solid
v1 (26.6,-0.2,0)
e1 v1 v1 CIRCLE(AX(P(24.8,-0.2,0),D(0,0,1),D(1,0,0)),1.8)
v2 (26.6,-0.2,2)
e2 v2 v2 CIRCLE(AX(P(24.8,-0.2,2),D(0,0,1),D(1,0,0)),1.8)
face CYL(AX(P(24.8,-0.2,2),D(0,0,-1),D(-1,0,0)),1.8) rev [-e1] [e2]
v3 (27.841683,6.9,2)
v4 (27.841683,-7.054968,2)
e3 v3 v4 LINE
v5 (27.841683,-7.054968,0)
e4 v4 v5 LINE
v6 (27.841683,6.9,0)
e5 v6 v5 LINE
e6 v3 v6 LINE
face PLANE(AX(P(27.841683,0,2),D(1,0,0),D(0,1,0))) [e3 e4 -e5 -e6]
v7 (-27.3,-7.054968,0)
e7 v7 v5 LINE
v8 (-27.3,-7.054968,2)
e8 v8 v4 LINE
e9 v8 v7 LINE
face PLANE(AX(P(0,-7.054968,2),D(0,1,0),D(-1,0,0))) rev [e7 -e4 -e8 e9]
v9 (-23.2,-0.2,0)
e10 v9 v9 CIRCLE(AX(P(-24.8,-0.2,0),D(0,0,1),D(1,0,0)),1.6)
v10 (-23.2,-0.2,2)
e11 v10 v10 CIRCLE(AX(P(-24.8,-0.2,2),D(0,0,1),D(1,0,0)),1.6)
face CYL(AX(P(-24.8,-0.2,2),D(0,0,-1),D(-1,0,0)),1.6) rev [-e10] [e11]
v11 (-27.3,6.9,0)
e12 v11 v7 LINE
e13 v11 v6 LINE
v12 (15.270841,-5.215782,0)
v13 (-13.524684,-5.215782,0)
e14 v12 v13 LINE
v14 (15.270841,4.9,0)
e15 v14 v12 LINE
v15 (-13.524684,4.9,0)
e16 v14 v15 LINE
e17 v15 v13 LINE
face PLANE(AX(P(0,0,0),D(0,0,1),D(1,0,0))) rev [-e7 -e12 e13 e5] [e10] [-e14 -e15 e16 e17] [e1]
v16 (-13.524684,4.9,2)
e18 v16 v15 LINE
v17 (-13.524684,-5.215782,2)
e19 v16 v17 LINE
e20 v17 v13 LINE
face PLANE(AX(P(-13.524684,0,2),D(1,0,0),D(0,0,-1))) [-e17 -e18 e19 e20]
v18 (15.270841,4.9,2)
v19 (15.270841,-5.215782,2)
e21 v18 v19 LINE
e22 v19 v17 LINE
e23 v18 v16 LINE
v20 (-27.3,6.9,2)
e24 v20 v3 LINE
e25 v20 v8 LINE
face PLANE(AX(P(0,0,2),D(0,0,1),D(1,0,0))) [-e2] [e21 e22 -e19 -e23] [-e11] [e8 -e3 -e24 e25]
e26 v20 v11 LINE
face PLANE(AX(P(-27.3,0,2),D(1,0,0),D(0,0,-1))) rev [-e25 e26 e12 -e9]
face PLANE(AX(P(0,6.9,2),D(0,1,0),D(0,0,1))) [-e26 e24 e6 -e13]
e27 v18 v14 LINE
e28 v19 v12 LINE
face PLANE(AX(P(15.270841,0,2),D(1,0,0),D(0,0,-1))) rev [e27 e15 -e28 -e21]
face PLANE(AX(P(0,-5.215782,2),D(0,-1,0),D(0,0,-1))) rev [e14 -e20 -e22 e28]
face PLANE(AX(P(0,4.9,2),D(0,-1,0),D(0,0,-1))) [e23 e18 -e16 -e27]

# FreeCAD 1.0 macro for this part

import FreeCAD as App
import Part
import Sketcher
Q = App.Units.Quantity

doc = App.newDocument("Part")
body = doc.addObject("PartDesign::Body", "Body")

# Sketch on XY plane
sketch1 = body.newObject("Sketcher::SketchObject", "Sketch")
sketch1.AttachmentSupport = (doc.getObject("XY_Plane"), [""])
sketch1.MapMode = "FlatFace"
sketch1.addGeometry([
    Part.LineSegment(App.Vector(-27.3, 6.9, 0), App.Vector(-27.3, -7.1, 0)),  # 0
    Part.LineSegment(App.Vector(-27.3, -7.1, 0), App.Vector(27.8, -7.1, 0)),  # 1
    Part.LineSegment(App.Vector(27.8, -7.1, 0), App.Vector(27.8, 6.9, 0)),  # 2
    Part.LineSegment(App.Vector(27.8, 6.9, 0), App.Vector(-27.3, 6.9, 0)),  # 3
    Part.Circle(App.Vector(-24.8, -0.2, 0), App.Vector(0, 0, 1), 1.6),  # 4
    Part.Circle(App.Vector(24.8, -0.2, 0), App.Vector(0, 0, 1), 1.8),  # 5
    Part.LineSegment(App.Vector(15.3, -5.2, 0), App.Vector(-13.5, -5.2, 0)),  # 6
    Part.LineSegment(App.Vector(-13.5, -5.2, 0), App.Vector(-13.5, 4.9, 0)),  # 7
    Part.LineSegment(App.Vector(-13.5, 4.9, 0), App.Vector(15.3, 4.9, 0)),  # 8
    Part.LineSegment(App.Vector(15.3, 4.9, 0), App.Vector(15.3, -5.2, 0)),  # 9
], False)
sketch1.addConstraint([
    Sketcher.Constraint("Coincident", 0, 2, 1, 1),
    Sketcher.Constraint("Coincident", 1, 2, 2, 1),
    Sketcher.Constraint("Coincident", 2, 2, 3, 1),
    Sketcher.Constraint("Coincident", 3, 2, 0, 1),
    Sketcher.Constraint("Coincident", 6, 2, 7, 1),
    Sketcher.Constraint("Coincident", 7, 2, 8, 1),
    Sketcher.Constraint("Coincident", 8, 2, 9, 1),
    Sketcher.Constraint("Coincident", 9, 2, 6, 1),
    Sketcher.Constraint("Vertical", 0),
    Sketcher.Constraint("Horizontal", 1),
    Sketcher.Constraint("Vertical", 2),
    Sketcher.Constraint("Horizontal", 3),
    Sketcher.Constraint("Horizontal", 6),
    Sketcher.Constraint("Vertical", 7),
    Sketcher.Constraint("Horizontal", 8),
    Sketcher.Constraint("Vertical", 9),
    Sketcher.Constraint("Symmetric", 4, 3, 5, 3, -2),
    Sketcher.Constraint("Diameter", 4, Q("3.2 mm")),
    Sketcher.Constraint("Diameter", 5, Q("3.6 mm")),
    Sketcher.Constraint("DistanceY", 7, 2, 3, 2, Q("2 mm")),
    Sketcher.Constraint("DistanceX", 4, 3, -1, 1, Q("24.8 mm")),
    Sketcher.Constraint("DistanceY", 4, 3, -1, 1, Q("0.2 mm")),
    Sketcher.Constraint("DistanceX", 0, 2, -1, 1, Q("27.3 mm")),
    Sketcher.Constraint("DistanceY", -1, 1, 2, 2, Q("6.9 mm")),
    Sketcher.Constraint("DistanceY", 0, 2, 0, 1, Q("13.954968 mm")),
    Sketcher.Constraint("DistanceX", 1, 1, 1, 2, Q("55.141683 mm")),
    Sketcher.Constraint("DistanceX", 6, 2, 6, 1, Q("28.795525 mm")),
    Sketcher.Constraint("DistanceY", 7, 1, 7, 2, Q("10.115782 mm")),
    Sketcher.Constraint("DistanceX", -1, 1, 8, 2, Q("15.270841 mm")),
])
pad1 = body.newObject("PartDesign::Pad", "Pad")
pad1.Profile = sketch1
pad1.Length = 2

doc.recompute()
